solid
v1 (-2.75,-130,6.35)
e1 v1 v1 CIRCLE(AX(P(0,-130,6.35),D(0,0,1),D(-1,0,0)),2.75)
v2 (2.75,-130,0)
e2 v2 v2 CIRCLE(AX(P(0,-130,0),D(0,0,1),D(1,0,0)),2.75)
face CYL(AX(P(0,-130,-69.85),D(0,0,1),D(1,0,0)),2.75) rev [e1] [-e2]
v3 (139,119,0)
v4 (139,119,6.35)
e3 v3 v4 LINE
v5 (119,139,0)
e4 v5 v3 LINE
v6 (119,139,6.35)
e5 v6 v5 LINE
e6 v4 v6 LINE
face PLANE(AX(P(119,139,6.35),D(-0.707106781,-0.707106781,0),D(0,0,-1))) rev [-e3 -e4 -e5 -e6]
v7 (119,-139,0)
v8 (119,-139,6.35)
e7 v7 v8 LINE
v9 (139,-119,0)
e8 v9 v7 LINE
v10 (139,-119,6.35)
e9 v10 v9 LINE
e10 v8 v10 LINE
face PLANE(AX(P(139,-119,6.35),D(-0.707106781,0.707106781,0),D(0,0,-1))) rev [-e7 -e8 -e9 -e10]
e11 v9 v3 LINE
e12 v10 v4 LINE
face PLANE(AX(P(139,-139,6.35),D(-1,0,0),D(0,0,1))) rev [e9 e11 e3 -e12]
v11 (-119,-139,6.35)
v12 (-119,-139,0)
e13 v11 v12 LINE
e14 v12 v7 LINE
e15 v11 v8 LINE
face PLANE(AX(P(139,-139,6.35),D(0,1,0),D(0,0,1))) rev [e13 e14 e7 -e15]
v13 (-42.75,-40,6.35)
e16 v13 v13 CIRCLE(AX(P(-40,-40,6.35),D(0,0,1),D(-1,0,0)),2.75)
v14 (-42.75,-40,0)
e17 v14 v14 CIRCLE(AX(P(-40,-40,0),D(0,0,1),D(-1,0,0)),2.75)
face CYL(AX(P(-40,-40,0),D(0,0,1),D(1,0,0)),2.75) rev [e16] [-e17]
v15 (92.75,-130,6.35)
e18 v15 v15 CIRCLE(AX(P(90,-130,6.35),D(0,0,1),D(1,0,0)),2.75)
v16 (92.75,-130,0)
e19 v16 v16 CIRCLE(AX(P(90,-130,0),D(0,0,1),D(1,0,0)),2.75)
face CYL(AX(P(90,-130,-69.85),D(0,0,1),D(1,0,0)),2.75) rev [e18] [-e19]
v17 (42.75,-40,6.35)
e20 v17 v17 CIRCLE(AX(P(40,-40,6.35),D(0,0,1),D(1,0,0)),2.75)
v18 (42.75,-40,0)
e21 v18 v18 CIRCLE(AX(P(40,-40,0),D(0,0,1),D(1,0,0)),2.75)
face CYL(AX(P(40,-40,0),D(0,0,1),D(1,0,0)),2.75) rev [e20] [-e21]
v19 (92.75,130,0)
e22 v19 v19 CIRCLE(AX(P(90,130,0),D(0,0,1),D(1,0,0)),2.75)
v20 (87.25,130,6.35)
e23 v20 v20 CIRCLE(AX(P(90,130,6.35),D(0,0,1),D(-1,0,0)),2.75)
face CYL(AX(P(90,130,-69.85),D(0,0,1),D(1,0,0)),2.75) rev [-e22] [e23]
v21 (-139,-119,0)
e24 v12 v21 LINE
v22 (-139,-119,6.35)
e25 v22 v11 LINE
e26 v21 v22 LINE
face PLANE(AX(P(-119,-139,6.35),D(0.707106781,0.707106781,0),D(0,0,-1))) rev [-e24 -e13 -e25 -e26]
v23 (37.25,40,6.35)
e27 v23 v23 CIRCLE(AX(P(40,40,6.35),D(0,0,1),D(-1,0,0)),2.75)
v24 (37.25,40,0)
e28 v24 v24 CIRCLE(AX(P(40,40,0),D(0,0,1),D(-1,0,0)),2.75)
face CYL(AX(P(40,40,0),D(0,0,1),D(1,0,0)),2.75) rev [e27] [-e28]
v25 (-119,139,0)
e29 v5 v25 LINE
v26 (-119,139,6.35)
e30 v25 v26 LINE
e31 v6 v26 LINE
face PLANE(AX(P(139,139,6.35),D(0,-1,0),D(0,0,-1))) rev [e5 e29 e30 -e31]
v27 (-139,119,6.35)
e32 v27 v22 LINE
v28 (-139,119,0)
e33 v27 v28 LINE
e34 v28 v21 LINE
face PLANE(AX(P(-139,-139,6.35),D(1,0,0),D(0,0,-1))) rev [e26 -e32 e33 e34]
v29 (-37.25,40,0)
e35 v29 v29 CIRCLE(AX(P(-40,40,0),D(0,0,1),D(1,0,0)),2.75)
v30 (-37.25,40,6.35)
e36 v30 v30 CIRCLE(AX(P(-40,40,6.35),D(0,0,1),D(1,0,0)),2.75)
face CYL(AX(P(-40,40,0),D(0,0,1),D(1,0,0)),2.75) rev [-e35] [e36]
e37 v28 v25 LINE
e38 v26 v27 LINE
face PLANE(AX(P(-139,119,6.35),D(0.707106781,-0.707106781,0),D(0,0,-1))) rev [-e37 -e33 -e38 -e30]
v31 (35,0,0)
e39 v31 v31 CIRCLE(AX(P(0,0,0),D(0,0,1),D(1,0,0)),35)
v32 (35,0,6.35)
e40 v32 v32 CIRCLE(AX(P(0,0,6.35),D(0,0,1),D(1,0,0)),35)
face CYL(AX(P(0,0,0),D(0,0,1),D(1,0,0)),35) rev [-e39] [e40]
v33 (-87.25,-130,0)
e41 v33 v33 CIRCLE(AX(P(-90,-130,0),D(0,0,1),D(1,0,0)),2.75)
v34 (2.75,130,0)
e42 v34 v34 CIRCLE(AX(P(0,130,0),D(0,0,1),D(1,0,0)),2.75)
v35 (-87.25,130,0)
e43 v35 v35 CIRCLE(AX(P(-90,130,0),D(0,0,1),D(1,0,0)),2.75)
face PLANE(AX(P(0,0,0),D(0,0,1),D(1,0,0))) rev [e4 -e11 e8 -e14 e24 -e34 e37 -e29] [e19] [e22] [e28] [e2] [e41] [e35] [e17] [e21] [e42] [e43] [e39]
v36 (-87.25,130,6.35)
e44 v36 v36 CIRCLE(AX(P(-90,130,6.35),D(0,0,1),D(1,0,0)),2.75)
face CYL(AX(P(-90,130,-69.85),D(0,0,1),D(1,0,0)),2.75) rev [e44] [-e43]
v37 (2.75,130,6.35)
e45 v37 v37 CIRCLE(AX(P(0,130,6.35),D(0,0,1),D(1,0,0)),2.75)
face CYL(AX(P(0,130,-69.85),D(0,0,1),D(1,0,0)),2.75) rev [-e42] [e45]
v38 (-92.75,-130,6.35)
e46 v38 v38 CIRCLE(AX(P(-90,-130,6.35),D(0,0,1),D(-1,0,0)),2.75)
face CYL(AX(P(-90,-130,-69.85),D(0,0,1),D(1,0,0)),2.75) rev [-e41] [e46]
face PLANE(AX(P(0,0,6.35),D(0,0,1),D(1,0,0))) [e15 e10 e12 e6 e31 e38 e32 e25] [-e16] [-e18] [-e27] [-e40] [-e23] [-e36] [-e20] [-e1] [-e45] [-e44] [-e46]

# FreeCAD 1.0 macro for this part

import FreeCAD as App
import Part
import Sketcher
from FreeCAD import Vector


def edges_at(feature, points):
    """Names of the edges that pass closest to the given points."""
    edges = feature.Shape.Edges
    near = lambda p: min(range(len(edges)), key=lambda i: edges[i].distToShape(Part.Vertex(*p))[0])
    return sorted({f"Edge{near(p) + 1}" for p in points})


def add_polygon(sketch, points):
    """Adds a closed chain of lines whose ends are joined by coincident constraints."""
    first, n = sketch.GeometryCount, len(points)
    for a, b in zip(points, points[1:] + points[:1]):
        sketch.addGeometry(Part.LineSegment(App.Vector(*a, 0), App.Vector(*b, 0)), False)
    for i in range(n):
        sketch.addConstraint(Sketcher.Constraint("Coincident", first + i, 2, first + (i + 1) % n, 1))

doc = App.newDocument("Part")
body = doc.addObject("PartDesign::Body", "Body")

# Sketch on XY plane
sketch1 = body.newObject("Sketcher::SketchObject", "Sketch")
sketch1.AttachmentSupport = (doc.getObject("XY_Plane"), [""])
sketch1.MapMode = "FlatFace"
add_polygon(sketch1, [(-139, 139), (-139, -139), (139, -139), (139, 139)])  # lines 0-3
sketch1.addConstraint([
    Sketcher.Constraint("Vertical", 0),
    Sketcher.Constraint("Horizontal", 1),
    Sketcher.Constraint("Vertical", 2),
    Sketcher.Constraint("Horizontal", 3),
    Sketcher.Constraint("Symmetric", 0, 2, 2, 2, -1, 1),
    Sketcher.Constraint("Equal", 3, 0),
    Sketcher.Constraint("DistanceX", 1, 1, 1, 2, 278.0),
])
pad1 = body.newObject("PartDesign::Pad", "Pad")
pad1.Profile = sketch1
pad1.Length = 6.35

# Sketch on XY plane
sketch2 = body.newObject("Sketcher::SketchObject", "Sketch001")
sketch2.AttachmentSupport = (doc.getObject("XY_Plane"), [""])
sketch2.MapMode = "FlatFace"
sketch2.AttachmentOffset = App.Placement(Vector(0, 0, 6.35), App.Rotation())
sketch2.addGeometry([
    Part.Circle(Vector(0, 0, 0), Vector(0, 0, 1), 35),  # 0
    Part.Circle(Vector(-40, 40, 0), Vector(0, 0, 1), 2.8),  # 1
    Part.Circle(Vector(40, 40, 0), Vector(0, 0, 1), 2.8),  # 2
    Part.Circle(Vector(40, -40, 0), Vector(0, 0, 1), 2.8),  # 3
    Part.Circle(Vector(-40, -40, 0), Vector(0, 0, 1), 2.8),  # 4
], False)
sketch2.addConstraint([
    Sketcher.Constraint("Coincident", 0, 3, -1, 1),
    Sketcher.Constraint("Equal", 1, 2),
    Sketcher.Constraint("Equal", 2, 3),
    Sketcher.Constraint("Equal", 3, 4),
    Sketcher.Constraint("Symmetric", 1, 3, 3, 3, -1, 1),
    Sketcher.Constraint("Symmetric", 2, 3, 4, 3, -1, 1),
    Sketcher.Constraint("Symmetric", 1, 3, 2, 3, -2),
    Sketcher.Constraint("Diameter", 0, 70.0),
    Sketcher.Constraint("Diameter", 1, 5.5),
    Sketcher.Constraint("DistanceX", 1, 3, -1, 1, 40.0),
    Sketcher.Constraint("DistanceY", -1, 1, 1, 3, 40.0),
])
pocket1 = body.newObject("PartDesign::Pocket", "Pocket")
pocket1.Profile = sketch2
pocket1.Type = "ThroughAll"
doc.recompute()

chamfer = body.newObject("PartDesign::Chamfer", "Chamfer")
chamfer.Base = (pocket1, edges_at(pocket1, [
    (-139, 139, 3.175),
    (139, 139, 3.175),
    (139, -139, 3.175),
    (-139, -139, 3.175),
]))
chamfer.Size = 20

# Sketch on XY plane
sketch3 = body.newObject("Sketcher::SketchObject", "Sketch002")
sketch3.AttachmentSupport = (doc.getObject("XY_Plane"), [""])
sketch3.MapMode = "FlatFace"
sketch3.AttachmentOffset = App.Placement(Vector(0, 0, 6.35), App.Rotation())
sketch3.addGeometry([
    Part.Circle(Vector(-90, 130, 0), Vector(0, 0, 1), 2.8),  # 0
    Part.Circle(Vector(0, 130, 0), Vector(0, 0, 1), 2.8),  # 1
    Part.Circle(Vector(90, 130, 0), Vector(0, 0, 1), 2.8),  # 2
    Part.Circle(Vector(90, -130, 0), Vector(0, 0, 1), 2.8),  # 3
    Part.Circle(Vector(0, -130, 0), Vector(0, 0, 1), 2.8),  # 4
    Part.Circle(Vector(-90, -130, 0), Vector(0, 0, 1), 2.8),  # 5
], False)
sketch3.addConstraint([
    Sketcher.Constraint("Equal", 0, 1),
    Sketcher.Constraint("Equal", 1, 2),
    Sketcher.Constraint("Equal", 2, 3),
    Sketcher.Constraint("Equal", 3, 4),
    Sketcher.Constraint("Equal", 4, 5),
    Sketcher.Constraint("Symmetric", 0, 3, 3, 3, -1, 1),
    Sketcher.Constraint("Symmetric", 1, 3, 4, 3, -1, 1),
    Sketcher.Constraint("Symmetric", 2, 3, 5, 3, -1, 1),
    Sketcher.Constraint("Symmetric", 0, 3, 2, 3, -2),
    Sketcher.Constraint("PointOnObject", 1, 3, -2),
    Sketcher.Constraint("Horizontal", 0, 3, 1, 3),
    Sketcher.Constraint("Diameter", 0, 5.5),
    Sketcher.Constraint("DistanceX", 0, 3, -1, 1, 90.0),
    Sketcher.Constraint("DistanceY", -1, 1, 0, 3, 130.0),
])
pocket2 = body.newObject("PartDesign::Pocket", "Pocket001")
pocket2.Profile = sketch3
pocket2.Length = 76.2

doc.recompute()
